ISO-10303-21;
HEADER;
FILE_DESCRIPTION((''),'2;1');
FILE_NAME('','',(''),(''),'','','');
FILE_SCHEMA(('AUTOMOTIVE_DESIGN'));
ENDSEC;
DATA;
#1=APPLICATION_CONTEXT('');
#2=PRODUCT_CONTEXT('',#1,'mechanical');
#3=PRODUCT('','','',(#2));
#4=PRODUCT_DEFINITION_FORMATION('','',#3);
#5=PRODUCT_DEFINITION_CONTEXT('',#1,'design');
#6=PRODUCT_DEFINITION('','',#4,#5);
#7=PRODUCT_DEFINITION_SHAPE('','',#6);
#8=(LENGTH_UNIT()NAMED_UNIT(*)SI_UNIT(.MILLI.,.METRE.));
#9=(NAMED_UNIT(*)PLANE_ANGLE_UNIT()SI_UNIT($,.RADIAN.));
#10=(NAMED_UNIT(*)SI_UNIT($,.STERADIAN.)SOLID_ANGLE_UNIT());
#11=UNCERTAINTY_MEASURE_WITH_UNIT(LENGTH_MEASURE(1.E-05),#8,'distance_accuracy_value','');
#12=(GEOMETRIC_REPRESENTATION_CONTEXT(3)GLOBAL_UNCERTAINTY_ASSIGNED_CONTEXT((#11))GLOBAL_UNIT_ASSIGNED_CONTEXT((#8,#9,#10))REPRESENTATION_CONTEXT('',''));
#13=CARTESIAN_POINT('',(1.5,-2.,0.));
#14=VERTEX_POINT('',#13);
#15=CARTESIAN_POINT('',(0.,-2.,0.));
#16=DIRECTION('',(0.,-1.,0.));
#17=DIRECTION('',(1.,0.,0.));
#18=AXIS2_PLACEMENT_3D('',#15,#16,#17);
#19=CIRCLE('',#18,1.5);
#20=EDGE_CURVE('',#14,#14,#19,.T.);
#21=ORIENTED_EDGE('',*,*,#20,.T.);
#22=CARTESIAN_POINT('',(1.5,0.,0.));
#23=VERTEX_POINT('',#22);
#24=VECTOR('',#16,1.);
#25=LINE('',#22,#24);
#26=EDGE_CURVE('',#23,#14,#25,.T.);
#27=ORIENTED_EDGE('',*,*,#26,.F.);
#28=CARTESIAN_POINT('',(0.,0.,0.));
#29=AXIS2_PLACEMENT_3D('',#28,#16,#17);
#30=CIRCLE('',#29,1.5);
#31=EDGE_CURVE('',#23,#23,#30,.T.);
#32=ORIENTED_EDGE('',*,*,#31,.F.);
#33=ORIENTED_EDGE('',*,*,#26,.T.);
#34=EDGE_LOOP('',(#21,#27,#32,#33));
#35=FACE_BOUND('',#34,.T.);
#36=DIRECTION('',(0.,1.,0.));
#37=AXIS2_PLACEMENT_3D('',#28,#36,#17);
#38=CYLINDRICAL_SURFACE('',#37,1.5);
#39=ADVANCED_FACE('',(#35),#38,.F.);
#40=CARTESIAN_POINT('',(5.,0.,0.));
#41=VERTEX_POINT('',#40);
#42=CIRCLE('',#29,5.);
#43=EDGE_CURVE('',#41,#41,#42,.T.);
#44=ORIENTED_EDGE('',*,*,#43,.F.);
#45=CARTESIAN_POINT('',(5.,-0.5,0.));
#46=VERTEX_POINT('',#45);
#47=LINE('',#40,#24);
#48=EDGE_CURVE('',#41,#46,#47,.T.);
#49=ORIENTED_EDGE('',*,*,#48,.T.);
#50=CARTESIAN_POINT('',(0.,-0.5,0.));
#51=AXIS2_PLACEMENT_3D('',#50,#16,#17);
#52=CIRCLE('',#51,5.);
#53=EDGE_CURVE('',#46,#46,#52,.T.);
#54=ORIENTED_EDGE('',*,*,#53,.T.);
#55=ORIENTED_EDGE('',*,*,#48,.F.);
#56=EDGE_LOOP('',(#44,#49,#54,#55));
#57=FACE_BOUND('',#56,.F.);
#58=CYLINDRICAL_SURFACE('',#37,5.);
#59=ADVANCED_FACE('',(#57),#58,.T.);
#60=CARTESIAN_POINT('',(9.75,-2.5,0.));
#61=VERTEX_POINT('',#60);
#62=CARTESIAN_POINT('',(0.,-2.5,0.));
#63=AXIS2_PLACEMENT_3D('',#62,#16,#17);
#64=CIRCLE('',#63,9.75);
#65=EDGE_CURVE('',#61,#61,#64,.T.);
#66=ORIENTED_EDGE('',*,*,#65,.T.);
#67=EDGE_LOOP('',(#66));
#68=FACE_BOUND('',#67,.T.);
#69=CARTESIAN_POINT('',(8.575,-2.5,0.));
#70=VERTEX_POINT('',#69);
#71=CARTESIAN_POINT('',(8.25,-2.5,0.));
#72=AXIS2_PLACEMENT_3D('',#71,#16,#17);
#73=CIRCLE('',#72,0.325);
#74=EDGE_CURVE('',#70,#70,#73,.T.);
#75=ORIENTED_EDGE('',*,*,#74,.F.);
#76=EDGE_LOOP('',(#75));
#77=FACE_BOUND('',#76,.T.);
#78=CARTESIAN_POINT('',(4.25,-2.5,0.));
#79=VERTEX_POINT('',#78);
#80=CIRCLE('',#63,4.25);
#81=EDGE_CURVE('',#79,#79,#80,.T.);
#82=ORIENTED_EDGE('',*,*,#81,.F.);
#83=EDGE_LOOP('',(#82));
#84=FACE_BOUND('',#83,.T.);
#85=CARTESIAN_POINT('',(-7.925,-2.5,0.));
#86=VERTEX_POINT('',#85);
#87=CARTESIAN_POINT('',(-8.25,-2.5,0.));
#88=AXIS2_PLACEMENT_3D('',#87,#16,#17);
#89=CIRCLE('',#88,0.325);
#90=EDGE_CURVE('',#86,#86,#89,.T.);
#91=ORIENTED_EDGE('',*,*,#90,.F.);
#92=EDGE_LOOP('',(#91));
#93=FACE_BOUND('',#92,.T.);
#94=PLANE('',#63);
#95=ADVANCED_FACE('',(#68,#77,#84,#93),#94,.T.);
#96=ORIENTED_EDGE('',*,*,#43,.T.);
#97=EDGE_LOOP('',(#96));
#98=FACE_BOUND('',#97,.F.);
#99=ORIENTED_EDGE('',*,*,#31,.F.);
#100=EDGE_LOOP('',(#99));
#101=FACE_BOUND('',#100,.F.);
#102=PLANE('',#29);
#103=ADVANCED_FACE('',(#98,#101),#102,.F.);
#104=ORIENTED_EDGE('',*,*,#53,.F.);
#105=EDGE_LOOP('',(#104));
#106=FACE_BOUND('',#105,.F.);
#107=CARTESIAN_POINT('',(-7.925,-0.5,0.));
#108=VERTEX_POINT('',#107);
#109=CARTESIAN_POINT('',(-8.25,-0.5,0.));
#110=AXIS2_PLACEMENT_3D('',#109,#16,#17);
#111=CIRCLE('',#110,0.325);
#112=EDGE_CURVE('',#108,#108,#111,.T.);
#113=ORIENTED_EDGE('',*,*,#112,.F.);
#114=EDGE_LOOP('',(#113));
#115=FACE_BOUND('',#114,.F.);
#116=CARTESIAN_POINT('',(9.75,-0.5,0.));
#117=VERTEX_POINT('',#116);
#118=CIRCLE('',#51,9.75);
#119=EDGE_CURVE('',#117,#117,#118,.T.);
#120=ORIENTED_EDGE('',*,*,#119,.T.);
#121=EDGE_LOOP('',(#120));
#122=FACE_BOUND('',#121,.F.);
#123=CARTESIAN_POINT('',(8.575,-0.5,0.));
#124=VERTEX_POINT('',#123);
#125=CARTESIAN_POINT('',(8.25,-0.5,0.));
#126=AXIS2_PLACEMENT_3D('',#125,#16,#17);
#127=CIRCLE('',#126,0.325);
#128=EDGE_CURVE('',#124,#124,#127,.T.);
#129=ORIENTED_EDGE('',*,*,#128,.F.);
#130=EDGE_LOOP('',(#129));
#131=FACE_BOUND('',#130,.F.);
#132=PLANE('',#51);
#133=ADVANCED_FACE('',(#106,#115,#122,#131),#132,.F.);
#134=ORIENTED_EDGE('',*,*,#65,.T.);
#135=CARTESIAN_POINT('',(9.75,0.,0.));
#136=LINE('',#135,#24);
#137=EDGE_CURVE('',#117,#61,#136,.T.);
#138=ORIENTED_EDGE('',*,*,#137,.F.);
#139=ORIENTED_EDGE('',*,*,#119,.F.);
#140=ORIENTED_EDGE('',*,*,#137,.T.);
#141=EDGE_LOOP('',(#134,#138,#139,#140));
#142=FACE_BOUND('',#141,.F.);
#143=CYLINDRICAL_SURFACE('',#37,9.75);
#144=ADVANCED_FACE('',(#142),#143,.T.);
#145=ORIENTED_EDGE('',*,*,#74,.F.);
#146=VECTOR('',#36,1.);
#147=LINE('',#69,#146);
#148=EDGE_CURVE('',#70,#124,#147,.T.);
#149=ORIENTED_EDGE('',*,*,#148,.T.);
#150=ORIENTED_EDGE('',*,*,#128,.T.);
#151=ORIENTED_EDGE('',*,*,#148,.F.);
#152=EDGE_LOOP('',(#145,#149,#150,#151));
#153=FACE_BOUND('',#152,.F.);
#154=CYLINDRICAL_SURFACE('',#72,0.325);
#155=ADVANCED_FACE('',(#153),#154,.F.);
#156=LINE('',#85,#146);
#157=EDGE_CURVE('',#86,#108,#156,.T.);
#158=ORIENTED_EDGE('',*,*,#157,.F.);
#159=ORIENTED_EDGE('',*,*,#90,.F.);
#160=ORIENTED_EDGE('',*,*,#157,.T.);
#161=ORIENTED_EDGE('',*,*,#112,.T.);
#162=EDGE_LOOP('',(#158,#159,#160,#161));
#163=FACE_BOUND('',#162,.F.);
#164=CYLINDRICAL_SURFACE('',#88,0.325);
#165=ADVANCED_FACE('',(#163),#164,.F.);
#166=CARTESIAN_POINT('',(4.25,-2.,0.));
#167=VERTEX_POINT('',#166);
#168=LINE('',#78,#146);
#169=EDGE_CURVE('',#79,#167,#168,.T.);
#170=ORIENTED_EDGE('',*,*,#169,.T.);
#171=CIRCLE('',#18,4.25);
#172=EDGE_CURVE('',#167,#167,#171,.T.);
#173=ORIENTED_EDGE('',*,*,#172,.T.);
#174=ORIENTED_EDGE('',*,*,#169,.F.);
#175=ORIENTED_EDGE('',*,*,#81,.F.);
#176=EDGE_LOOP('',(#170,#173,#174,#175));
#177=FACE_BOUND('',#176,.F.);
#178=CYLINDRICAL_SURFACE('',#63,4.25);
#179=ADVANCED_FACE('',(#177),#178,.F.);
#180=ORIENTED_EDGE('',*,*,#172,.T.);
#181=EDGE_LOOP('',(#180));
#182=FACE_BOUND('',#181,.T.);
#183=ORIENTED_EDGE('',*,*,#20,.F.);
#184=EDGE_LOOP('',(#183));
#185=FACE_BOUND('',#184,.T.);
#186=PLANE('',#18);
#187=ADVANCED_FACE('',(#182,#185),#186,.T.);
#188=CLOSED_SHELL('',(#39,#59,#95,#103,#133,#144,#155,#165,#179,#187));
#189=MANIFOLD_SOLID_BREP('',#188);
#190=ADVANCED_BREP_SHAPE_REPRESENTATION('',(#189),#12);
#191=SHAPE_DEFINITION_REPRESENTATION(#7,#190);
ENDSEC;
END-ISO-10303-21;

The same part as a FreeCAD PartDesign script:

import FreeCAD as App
import Part
import Sketcher
from FreeCAD import Vector
Q = App.Units.Quantity

doc = App.newDocument("Part")
body = doc.addObject("PartDesign::Body", "Body")

sketch1 = body.newObject("Sketcher::SketchObject", "Sketch")
sketch1.AttachmentSupport = (doc.getObject("XZ_Plane"), [""])
sketch1.MapMode = "FlatFace"
sketch1.addGeometry(Part.Circle(Vector(0, 0, 0), Vector(0, 0, 1), 9.8), False)
sketch1.addGeometry(Part.Circle(Vector(0, 0, 0), Vector(0, 0, 1), 1.5), False)
sketch1.addConstraint(Sketcher.Constraint("Coincident", 0, 3, -1, 1))
sketch1.addConstraint(Sketcher.Constraint("Coincident", 1, 3, -1, 1))
sketch1.addConstraint(Sketcher.Constraint("Diameter", 1, Q("3 mm")))
sketch1.addConstraint(Sketcher.Constraint("Diameter", 0, Q("19.5 mm")))
pad1 = body.newObject("PartDesign::Pad", "Pad")
pad1.Profile = sketch1
pad1.Length = 2.5

sketch2 = body.newObject("Sketcher::SketchObject", "Sketch001")
sketch2.AttachmentSupport = (doc.getObject("XZ_Plane"), [""])
sketch2.MapMode = "FlatFace"
sketch2.addGeometry(Part.Circle(Vector(0, 0, 0), Vector(0, 0, 1), 10), False)
sketch2.addGeometry(Part.Circle(Vector(0, 0, 0), Vector(0, 0, 1), 5), False)
sketch2.addConstraint(Sketcher.Constraint("Coincident", 0, 3, -1, 1))
sketch2.addConstraint(Sketcher.Constraint("Coincident", 1, 3, -1, 1))
sketch2.addConstraint(Sketcher.Constraint("Diameter", 1, Q("10 mm")))
sketch2.addConstraint(Sketcher.Constraint("Diameter", 0, Q("19.5 mm")))
pocket1 = body.newObject("PartDesign::Pocket", "Pocket")
pocket1.Profile = sketch2
pocket1.Length = 0.5
pocket1.Reversed = True

sketch3 = body.newObject("Sketcher::SketchObject", "Sketch002")
sketch3.AttachmentSupport = (doc.getObject("XZ_Plane"), [""])
sketch3.MapMode = "FlatFace"
sketch3.AttachmentOffset = App.Placement(Vector(0, 0, 2.5), App.Rotation())
sketch3.addGeometry(Part.Circle(Vector(0, 0, 0), Vector(0, 0, 1), 4.2), False)
sketch3.addGeometry(Part.Circle(Vector(0, 0, 0), Vector(0, 0, 1), 1.5), False)
sketch3.addConstraint(Sketcher.Constraint("Coincident", 0, 3, -1, 1))
sketch3.addConstraint(Sketcher.Constraint("Coincident", 1, 3, -1, 1))
sketch3.addConstraint(Sketcher.Constraint("Diameter", 1, Q("3 mm")))
sketch3.addConstraint(Sketcher.Constraint("Diameter", 0, Q("8.5 mm")))
pocket2 = body.newObject("PartDesign::Pocket", "Pocket001")
pocket2.Profile = sketch3
pocket2.Length = 0.5

sketch4 = body.newObject("Sketcher::SketchObject", "Sketch003")
sketch4.AttachmentSupport = (doc.getObject("XZ_Plane"), [""])
sketch4.MapMode = "FlatFace"
sketch4.AttachmentOffset = App.Placement(Vector(0, 0, 2.5), App.Rotation())
sketch4.addGeometry(Part.Circle(Vector(8.25, 0, 0), Vector(0, 0, 1), 0.33), False)
sketch4.addGeometry(Part.Circle(Vector(-8.25, 0, 0), Vector(0, 0, 1), 0.33), False)
sketch4.addConstraint(Sketcher.Constraint("Equal", 0, 1))
sketch4.addConstraint(Sketcher.Constraint("Symmetric", 0, 3, 1, 3, -1, 1))
sketch4.addConstraint(Sketcher.Constraint("PointOnObject", 0, 3, -1))
sketch4.addConstraint(Sketcher.Constraint("Diameter", 0, Q("0.65 mm")))
sketch4.addConstraint(Sketcher.Constraint("DistanceX", 1, 3, 0, 3, Q("16.5 mm")))
pocket3 = body.newObject("PartDesign::Pocket", "Pocket002")
pocket3.Profile = sketch4
pocket3.Type = "ThroughAll"

doc.recompute()
